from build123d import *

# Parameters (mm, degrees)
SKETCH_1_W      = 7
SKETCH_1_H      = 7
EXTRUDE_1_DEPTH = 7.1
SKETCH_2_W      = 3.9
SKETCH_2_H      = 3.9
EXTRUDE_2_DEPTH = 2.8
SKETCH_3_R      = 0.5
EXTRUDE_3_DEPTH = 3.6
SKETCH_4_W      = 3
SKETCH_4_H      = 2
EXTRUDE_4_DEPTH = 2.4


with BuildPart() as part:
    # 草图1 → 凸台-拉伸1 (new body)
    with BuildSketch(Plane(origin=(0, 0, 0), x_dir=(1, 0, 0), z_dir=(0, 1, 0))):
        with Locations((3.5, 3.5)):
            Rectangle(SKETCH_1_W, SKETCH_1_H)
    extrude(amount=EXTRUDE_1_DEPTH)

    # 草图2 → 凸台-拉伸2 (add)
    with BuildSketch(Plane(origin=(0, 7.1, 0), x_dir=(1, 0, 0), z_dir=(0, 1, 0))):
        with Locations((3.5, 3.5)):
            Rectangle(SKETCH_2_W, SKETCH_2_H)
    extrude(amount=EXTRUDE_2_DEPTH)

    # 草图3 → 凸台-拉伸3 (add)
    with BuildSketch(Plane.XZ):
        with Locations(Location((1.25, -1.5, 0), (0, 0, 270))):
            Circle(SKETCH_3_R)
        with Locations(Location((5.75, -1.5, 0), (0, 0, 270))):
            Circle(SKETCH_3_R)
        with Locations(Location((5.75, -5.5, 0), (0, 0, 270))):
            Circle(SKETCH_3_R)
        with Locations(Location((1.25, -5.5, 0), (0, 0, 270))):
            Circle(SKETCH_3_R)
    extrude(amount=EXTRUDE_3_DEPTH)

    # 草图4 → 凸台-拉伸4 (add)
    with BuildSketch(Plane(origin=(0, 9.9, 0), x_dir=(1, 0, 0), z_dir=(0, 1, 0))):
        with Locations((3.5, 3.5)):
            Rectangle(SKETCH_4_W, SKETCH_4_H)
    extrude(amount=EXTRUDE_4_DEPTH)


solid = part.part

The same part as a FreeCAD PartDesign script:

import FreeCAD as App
import Part
import Sketcher
from FreeCAD import Vector

doc = App.newDocument("Part")
body = doc.addObject("PartDesign::Body", "Body")

# Sketch on XZ plane
sketch1 = doc.addObject("Sketcher::SketchObject", "Sketch")
body.addObject(sketch1)
sketch1.AttachmentSupport = (doc.XZ_Plane, [""])
sketch1.MapMode = "FlatFace"
sketch1.addGeometry(Part.LineSegment(Vector(0, -7, 0), Vector(0, 0, 0)), False)
sketch1.addGeometry(Part.LineSegment(Vector(0, 0, 0), Vector(7, 0, 0)), False)
sketch1.addGeometry(Part.LineSegment(Vector(7, 0, 0), Vector(7, -7, 0)), False)
sketch1.addGeometry(Part.LineSegment(Vector(7, -7, 0), Vector(0, -7, 0)), False)
sketch1.addConstraint(Sketcher.Constraint("Coincident", 0, 2, 1, 1))
sketch1.addConstraint(Sketcher.Constraint("Coincident", 1, 2, 2, 1))
sketch1.addConstraint(Sketcher.Constraint("Coincident", 2, 2, 3, 1))
sketch1.addConstraint(Sketcher.Constraint("Coincident", 3, 2, 0, 1))
sketch1.addConstraint(Sketcher.Constraint("Vertical", 0))
sketch1.addConstraint(Sketcher.Constraint("Horizontal", 1))
sketch1.addConstraint(Sketcher.Constraint("Vertical", 2))
sketch1.addConstraint(Sketcher.Constraint("Horizontal", 3))
sketch1.addConstraint(Sketcher.Constraint("Coincident", 0, 2, -1, 1))
sketch1.addConstraint(Sketcher.Constraint("Equal", 3, 0))
sketch1.addConstraint(Sketcher.Constraint("DistanceX", 1, 1, 1, 2, 7.0))
pad1 = doc.addObject("PartDesign::Pad", "Pad")
body.addObject(pad1)
pad1.Profile = sketch1
pad1.Length = 7.1
pad1.Reversed = True

# Sketch on XZ plane
sketch2 = doc.addObject("Sketcher::SketchObject", "Sketch001")
body.addObject(sketch2)
sketch2.AttachmentSupport = (doc.XZ_Plane, [""])
sketch2.MapMode = "FlatFace"
sketch2.AttachmentOffset = App.Placement(Vector(0, 0, -7.1), App.Rotation())
sketch2.addGeometry(Part.LineSegment(Vector(1.6, -5.5, 0), Vector(1.6, -1.6, 0)), False)
sketch2.addGeometry(Part.LineSegment(Vector(1.6, -1.6, 0), Vector(5.5, -1.6, 0)), False)
sketch2.addGeometry(Part.LineSegment(Vector(5.5, -1.6, 0), Vector(5.5, -5.5, 0)), False)
sketch2.addGeometry(Part.LineSegment(Vector(5.5, -5.5, 0), Vector(1.6, -5.5, 0)), False)
sketch2.addConstraint(Sketcher.Constraint("Coincident", 0, 2, 1, 1))
sketch2.addConstraint(Sketcher.Constraint("Coincident", 1, 2, 2, 1))
sketch2.addConstraint(Sketcher.Constraint("Coincident", 2, 2, 3, 1))
sketch2.addConstraint(Sketcher.Constraint("Coincident", 3, 2, 0, 1))
sketch2.addConstraint(Sketcher.Constraint("Vertical", 0))
sketch2.addConstraint(Sketcher.Constraint("Horizontal", 1))
sketch2.addConstraint(Sketcher.Constraint("Vertical", 2))
sketch2.addConstraint(Sketcher.Constraint("Horizontal", 3))
sketch2.addConstraint(Sketcher.Constraint("Equal", 3, 0))
sketch2.addConstraint(Sketcher.Constraint("DistanceX", 1, 1, 1, 2, 3.9))
sketch2.addConstraint(Sketcher.Constraint("DistanceX", -1, 1, 0, 2, 1.55))
sketch2.addConstraint(Sketcher.Constraint("DistanceY", 0, 2, -1, 1, 1.55))
pad2 = doc.addObject("PartDesign::Pad", "Pad001")
body.addObject(pad2)
pad2.Profile = sketch2
pad2.Length = 2.8
pad2.Reversed = True

# Sketch on XZ plane
sketch3 = doc.addObject("Sketcher::SketchObject", "Sketch002")
body.addObject(sketch3)
sketch3.AttachmentSupport = (doc.XZ_Plane, [""])
sketch3.MapMode = "FlatFace"
sketch3.addGeometry(Part.Circle(Vector(1.2, -1.5, 0), Vector(0, 0, 1), 0.5), False)
sketch3.addGeometry(Part.Circle(Vector(5.8, -1.5, 0), Vector(0, 0, 1), 0.5), False)
sketch3.addGeometry(Part.Circle(Vector(5.8, -5.5, 0), Vector(0, 0, 1), 0.5), False)
sketch3.addGeometry(Part.Circle(Vector(1.2, -5.5, 0), Vector(0, 0, 1), 0.5), False)
sketch3.addConstraint(Sketcher.Constraint("Equal", 0, 1))
sketch3.addConstraint(Sketcher.Constraint("Equal", 1, 2))
sketch3.addConstraint(Sketcher.Constraint("Equal", 2, 3))
sketch3.addConstraint(Sketcher.Constraint("Horizontal", 0, 3, 1, 3))
sketch3.addConstraint(Sketcher.Constraint("Horizontal", 2, 3, 3, 3))
sketch3.addConstraint(Sketcher.Constraint("Vertical", 1, 3, 2, 3))
sketch3.addConstraint(Sketcher.Constraint("Vertical", 0, 3, 3, 3))
sketch3.addConstraint(Sketcher.Constraint("Diameter", 0, 1.0))
sketch3.addConstraint(Sketcher.Constraint("DistanceY", 2, 3, 1, 3, 4.0))
sketch3.addConstraint(Sketcher.Constraint("DistanceY", 0, 3, -1, 1, 1.5))
sketch3.addConstraint(Sketcher.Constraint("DistanceX", 0, 3, 1, 3, 4.5))
sketch3.addConstraint(Sketcher.Constraint("DistanceX", -1, 1, 0, 3, 1.25))
pad3 = doc.addObject("PartDesign::Pad", "Pad002")
body.addObject(pad3)
pad3.Profile = sketch3
pad3.Length = 3.6

# Sketch on XZ plane
sketch4 = doc.addObject("Sketcher::SketchObject", "Sketch003")
body.addObject(sketch4)
sketch4.AttachmentSupport = (doc.XZ_Plane, [""])
sketch4.MapMode = "FlatFace"
sketch4.AttachmentOffset = App.Placement(Vector(0, 0, -9.9), App.Rotation())
sketch4.addGeometry(Part.LineSegment(Vector(2, -4.5, 0), Vector(2, -2.5, 0)), False)
sketch4.addGeometry(Part.LineSegment(Vector(2, -2.5, 0), Vector(5, -2.5, 0)), False)
sketch4.addGeometry(Part.LineSegment(Vector(5, -2.5, 0), Vector(5, -4.5, 0)), False)
sketch4.addGeometry(Part.LineSegment(Vector(5, -4.5, 0), Vector(2, -4.5, 0)), False)
sketch4.addConstraint(Sketcher.Constraint("Coincident", 0, 2, 1, 1))
sketch4.addConstraint(Sketcher.Constraint("Coincident", 1, 2, 2, 1))
sketch4.addConstraint(Sketcher.Constraint("Coincident", 2, 2, 3, 1))
sketch4.addConstraint(Sketcher.Constraint("Coincident", 3, 2, 0, 1))
sketch4.addConstraint(Sketcher.Constraint("Vertical", 0))
sketch4.addConstraint(Sketcher.Constraint("Horizontal", 1))
sketch4.addConstraint(Sketcher.Constraint("Vertical", 2))
sketch4.addConstraint(Sketcher.Constraint("Horizontal", 3))
sketch4.addConstraint(Sketcher.Constraint("DistanceX", 1, 1, 1, 2, 3.0))
sketch4.addConstraint(Sketcher.Constraint("DistanceY", 0, 1, 0, 2, 2.0))
sketch4.addConstraint(Sketcher.Constraint("DistanceX", -1, 1, 0, 2, 2.0))
sketch4.addConstraint(Sketcher.Constraint("DistanceY", 0, 2, -1, 1, 2.5))
pad4 = doc.addObject("PartDesign::Pad", "Pad003")
body.addObject(pad4)
pad4.Profile = sketch4
pad4.Length = 2.4
pad4.Reversed = True

doc.recompute()
